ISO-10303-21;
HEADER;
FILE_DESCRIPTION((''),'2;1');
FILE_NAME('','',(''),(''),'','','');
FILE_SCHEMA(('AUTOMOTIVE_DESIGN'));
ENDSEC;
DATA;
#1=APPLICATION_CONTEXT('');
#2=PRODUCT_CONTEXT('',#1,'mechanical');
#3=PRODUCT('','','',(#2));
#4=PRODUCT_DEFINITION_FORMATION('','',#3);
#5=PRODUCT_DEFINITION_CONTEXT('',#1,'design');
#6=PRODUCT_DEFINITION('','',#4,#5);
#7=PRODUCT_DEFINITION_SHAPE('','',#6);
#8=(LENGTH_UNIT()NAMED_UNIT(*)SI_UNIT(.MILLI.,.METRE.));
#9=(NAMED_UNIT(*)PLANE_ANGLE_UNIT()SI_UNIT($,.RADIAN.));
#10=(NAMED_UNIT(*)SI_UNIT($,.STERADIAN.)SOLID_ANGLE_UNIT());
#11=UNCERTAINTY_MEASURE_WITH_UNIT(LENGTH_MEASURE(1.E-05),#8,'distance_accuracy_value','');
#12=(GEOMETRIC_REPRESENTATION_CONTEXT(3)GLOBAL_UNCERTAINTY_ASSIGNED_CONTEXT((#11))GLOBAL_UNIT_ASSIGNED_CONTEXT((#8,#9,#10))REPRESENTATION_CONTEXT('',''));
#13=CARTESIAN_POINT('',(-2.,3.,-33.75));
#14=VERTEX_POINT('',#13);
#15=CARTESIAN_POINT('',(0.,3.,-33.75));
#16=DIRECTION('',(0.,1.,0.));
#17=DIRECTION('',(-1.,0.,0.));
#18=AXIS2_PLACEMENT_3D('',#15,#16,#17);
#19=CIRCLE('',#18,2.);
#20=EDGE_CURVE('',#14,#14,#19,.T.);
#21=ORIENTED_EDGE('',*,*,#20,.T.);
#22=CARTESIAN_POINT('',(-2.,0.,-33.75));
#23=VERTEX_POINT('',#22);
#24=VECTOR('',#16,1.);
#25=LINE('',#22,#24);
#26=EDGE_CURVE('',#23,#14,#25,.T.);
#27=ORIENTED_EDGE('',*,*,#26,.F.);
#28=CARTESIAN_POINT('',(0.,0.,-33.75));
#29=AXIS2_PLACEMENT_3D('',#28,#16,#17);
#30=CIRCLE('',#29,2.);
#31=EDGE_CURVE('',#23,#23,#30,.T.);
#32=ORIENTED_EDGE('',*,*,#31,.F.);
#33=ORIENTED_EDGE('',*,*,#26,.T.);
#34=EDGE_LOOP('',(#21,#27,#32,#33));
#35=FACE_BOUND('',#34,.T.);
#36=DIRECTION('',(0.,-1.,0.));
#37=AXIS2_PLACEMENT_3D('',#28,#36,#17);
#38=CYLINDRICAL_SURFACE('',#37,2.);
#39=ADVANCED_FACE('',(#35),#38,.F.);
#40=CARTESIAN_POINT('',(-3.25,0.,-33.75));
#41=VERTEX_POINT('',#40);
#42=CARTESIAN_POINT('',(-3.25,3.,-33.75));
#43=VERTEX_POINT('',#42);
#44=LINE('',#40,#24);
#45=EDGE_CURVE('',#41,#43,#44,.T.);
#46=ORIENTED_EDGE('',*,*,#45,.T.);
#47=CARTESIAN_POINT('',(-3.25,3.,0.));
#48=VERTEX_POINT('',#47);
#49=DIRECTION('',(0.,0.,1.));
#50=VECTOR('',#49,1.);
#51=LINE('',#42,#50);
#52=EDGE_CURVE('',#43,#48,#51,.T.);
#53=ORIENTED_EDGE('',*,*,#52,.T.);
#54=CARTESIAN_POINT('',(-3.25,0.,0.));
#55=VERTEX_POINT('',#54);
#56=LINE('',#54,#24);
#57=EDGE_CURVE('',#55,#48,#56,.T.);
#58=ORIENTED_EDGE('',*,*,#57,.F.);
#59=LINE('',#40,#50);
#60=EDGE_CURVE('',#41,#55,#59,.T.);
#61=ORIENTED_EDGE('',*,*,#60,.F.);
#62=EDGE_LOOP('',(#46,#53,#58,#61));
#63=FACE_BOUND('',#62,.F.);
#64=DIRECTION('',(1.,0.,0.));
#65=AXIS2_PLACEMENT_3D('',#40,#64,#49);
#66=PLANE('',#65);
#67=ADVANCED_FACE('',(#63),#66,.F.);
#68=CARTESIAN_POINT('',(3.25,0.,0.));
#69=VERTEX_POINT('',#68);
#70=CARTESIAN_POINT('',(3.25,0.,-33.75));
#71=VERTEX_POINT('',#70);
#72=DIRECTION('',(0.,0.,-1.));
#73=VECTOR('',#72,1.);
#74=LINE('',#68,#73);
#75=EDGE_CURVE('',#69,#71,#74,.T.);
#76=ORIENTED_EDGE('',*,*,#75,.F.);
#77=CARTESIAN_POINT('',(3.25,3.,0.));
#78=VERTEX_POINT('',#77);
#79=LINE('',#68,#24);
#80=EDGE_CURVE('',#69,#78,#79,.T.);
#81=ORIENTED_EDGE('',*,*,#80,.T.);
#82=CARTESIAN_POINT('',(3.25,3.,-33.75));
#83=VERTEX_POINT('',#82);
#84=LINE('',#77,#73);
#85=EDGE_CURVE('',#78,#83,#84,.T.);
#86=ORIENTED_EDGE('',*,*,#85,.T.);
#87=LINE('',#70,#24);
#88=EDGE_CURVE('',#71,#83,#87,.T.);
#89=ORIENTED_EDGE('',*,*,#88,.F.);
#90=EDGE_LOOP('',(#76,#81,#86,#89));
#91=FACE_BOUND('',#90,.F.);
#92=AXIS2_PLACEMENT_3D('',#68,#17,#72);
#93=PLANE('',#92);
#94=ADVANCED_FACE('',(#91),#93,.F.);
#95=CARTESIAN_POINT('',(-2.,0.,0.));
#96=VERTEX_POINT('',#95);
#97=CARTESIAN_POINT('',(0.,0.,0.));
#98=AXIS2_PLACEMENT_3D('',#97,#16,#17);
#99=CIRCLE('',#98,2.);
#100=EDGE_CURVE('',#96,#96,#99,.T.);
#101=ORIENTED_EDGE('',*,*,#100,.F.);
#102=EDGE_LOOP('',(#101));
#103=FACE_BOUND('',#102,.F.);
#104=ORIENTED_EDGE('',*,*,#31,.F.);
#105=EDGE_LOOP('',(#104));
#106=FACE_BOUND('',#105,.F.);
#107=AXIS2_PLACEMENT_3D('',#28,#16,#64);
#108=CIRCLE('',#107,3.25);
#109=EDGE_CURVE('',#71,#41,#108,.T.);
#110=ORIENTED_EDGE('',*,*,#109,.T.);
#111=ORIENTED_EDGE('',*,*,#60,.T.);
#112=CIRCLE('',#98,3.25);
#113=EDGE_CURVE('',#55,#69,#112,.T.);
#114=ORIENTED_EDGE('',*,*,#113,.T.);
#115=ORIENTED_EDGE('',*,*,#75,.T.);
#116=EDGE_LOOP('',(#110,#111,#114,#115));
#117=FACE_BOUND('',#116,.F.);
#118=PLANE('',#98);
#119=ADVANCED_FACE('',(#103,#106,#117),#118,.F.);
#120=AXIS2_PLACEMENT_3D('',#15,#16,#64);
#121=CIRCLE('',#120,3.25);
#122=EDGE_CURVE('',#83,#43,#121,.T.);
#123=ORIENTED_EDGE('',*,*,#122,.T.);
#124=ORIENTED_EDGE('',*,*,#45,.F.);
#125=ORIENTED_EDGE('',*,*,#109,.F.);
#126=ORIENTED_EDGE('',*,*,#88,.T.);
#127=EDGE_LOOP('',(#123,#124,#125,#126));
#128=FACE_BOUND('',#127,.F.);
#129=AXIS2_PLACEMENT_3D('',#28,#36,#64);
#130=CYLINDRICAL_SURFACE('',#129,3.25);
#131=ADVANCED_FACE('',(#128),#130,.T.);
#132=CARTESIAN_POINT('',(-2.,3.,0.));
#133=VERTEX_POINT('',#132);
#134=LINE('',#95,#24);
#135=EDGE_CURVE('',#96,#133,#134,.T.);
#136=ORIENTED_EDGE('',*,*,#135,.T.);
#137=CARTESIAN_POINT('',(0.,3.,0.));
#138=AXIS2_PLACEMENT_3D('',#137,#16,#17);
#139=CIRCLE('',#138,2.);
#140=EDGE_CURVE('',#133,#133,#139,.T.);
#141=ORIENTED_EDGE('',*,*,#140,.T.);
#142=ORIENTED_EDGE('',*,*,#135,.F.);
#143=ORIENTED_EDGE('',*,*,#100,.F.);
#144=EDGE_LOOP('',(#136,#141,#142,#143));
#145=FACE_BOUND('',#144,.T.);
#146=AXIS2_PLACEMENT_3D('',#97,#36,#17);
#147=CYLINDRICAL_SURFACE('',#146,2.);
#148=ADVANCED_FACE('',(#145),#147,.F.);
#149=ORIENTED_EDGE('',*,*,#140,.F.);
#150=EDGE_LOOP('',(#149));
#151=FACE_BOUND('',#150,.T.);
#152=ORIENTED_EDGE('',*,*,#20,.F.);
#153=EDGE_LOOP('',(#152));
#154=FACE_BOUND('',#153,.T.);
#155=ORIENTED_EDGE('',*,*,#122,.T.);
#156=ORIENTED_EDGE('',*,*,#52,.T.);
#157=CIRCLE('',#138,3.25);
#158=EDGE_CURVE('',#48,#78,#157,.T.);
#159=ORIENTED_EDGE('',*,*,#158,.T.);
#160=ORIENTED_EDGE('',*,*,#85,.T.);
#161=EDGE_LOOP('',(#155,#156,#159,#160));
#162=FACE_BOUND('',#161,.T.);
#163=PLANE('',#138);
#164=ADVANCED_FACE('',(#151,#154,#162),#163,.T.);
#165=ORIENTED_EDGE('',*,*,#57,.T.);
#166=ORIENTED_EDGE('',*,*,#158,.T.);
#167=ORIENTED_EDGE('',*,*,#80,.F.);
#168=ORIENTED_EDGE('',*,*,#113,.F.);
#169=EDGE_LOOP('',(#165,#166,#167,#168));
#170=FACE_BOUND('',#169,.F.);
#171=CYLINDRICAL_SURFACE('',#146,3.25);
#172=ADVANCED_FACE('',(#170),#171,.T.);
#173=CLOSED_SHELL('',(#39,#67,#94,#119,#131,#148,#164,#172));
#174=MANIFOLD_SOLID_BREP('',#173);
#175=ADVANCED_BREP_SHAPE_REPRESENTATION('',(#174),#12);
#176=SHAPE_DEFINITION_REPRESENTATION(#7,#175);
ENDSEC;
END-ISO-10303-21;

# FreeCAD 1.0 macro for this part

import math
import FreeCAD as App
import Part
import Sketcher

V = App.Vector

doc = App.newDocument("Part")
body = doc.addObject("PartDesign::Body", "Body")

sketch1 = doc.addObject("Sketcher::SketchObject", "Sketch")
body.addObject(sketch1)
sketch1.AttachmentSupport = (doc.XZ_Plane, [""])
sketch1.MapMode = "FlatFace"
sketch1.addGeometry([
    Part.ArcOfCircle(Part.Circle(V(0, 0, 0), V(0, 0, 1), 3.2), math.radians(0), math.radians(180)),
    Part.LineSegment(V(3.2, 0, 0), V(3.2, -33.8, 0)),
    Part.ArcOfCircle(Part.Circle(V(0, -33.8, 0), V(0, 0, 1), 3.2), math.radians(180), math.radians(360)),
    Part.LineSegment(V(-3.2, -33.8, 0), V(-3.2, 0, 0)),
    Part.Circle(V(0, -33.8, 0), V(0, 0, 1), 2),
    Part.Circle(V(0, 0, 0), V(0, 0, 1), 2),
], False)
sketch1.addConstraint([
    Sketcher.Constraint("Tangent", 0, 1, 1, 1),
    Sketcher.Constraint("Tangent", 1, 2, 2, 2),
    Sketcher.Constraint("Tangent", 2, 1, 3, 1),
    Sketcher.Constraint("Tangent", 3, 2, 0, 2),
    Sketcher.Constraint("Vertical", 1),
    Sketcher.Constraint("Vertical", 3),
    Sketcher.Constraint("Coincident", 0, 3, -1, 1),
    Sketcher.Constraint("Coincident", 5, 3, -1, 1),
    Sketcher.Constraint("Coincident", 4, 3, 2, 3),
    Sketcher.Constraint("Equal", 4, 5),
    Sketcher.Constraint("Diameter", 4, 4.0),
    Sketcher.Constraint("Radius", 0, 3.25),
    Sketcher.Constraint("DistanceY", 1, 2, 1, 1, 33.75),
])
pad1 = doc.addObject("PartDesign::Pad", "Pad")
body.addObject(pad1)
pad1.Profile = sketch1
pad1.Length = 3
pad1.Reversed = True

doc.recompute()
